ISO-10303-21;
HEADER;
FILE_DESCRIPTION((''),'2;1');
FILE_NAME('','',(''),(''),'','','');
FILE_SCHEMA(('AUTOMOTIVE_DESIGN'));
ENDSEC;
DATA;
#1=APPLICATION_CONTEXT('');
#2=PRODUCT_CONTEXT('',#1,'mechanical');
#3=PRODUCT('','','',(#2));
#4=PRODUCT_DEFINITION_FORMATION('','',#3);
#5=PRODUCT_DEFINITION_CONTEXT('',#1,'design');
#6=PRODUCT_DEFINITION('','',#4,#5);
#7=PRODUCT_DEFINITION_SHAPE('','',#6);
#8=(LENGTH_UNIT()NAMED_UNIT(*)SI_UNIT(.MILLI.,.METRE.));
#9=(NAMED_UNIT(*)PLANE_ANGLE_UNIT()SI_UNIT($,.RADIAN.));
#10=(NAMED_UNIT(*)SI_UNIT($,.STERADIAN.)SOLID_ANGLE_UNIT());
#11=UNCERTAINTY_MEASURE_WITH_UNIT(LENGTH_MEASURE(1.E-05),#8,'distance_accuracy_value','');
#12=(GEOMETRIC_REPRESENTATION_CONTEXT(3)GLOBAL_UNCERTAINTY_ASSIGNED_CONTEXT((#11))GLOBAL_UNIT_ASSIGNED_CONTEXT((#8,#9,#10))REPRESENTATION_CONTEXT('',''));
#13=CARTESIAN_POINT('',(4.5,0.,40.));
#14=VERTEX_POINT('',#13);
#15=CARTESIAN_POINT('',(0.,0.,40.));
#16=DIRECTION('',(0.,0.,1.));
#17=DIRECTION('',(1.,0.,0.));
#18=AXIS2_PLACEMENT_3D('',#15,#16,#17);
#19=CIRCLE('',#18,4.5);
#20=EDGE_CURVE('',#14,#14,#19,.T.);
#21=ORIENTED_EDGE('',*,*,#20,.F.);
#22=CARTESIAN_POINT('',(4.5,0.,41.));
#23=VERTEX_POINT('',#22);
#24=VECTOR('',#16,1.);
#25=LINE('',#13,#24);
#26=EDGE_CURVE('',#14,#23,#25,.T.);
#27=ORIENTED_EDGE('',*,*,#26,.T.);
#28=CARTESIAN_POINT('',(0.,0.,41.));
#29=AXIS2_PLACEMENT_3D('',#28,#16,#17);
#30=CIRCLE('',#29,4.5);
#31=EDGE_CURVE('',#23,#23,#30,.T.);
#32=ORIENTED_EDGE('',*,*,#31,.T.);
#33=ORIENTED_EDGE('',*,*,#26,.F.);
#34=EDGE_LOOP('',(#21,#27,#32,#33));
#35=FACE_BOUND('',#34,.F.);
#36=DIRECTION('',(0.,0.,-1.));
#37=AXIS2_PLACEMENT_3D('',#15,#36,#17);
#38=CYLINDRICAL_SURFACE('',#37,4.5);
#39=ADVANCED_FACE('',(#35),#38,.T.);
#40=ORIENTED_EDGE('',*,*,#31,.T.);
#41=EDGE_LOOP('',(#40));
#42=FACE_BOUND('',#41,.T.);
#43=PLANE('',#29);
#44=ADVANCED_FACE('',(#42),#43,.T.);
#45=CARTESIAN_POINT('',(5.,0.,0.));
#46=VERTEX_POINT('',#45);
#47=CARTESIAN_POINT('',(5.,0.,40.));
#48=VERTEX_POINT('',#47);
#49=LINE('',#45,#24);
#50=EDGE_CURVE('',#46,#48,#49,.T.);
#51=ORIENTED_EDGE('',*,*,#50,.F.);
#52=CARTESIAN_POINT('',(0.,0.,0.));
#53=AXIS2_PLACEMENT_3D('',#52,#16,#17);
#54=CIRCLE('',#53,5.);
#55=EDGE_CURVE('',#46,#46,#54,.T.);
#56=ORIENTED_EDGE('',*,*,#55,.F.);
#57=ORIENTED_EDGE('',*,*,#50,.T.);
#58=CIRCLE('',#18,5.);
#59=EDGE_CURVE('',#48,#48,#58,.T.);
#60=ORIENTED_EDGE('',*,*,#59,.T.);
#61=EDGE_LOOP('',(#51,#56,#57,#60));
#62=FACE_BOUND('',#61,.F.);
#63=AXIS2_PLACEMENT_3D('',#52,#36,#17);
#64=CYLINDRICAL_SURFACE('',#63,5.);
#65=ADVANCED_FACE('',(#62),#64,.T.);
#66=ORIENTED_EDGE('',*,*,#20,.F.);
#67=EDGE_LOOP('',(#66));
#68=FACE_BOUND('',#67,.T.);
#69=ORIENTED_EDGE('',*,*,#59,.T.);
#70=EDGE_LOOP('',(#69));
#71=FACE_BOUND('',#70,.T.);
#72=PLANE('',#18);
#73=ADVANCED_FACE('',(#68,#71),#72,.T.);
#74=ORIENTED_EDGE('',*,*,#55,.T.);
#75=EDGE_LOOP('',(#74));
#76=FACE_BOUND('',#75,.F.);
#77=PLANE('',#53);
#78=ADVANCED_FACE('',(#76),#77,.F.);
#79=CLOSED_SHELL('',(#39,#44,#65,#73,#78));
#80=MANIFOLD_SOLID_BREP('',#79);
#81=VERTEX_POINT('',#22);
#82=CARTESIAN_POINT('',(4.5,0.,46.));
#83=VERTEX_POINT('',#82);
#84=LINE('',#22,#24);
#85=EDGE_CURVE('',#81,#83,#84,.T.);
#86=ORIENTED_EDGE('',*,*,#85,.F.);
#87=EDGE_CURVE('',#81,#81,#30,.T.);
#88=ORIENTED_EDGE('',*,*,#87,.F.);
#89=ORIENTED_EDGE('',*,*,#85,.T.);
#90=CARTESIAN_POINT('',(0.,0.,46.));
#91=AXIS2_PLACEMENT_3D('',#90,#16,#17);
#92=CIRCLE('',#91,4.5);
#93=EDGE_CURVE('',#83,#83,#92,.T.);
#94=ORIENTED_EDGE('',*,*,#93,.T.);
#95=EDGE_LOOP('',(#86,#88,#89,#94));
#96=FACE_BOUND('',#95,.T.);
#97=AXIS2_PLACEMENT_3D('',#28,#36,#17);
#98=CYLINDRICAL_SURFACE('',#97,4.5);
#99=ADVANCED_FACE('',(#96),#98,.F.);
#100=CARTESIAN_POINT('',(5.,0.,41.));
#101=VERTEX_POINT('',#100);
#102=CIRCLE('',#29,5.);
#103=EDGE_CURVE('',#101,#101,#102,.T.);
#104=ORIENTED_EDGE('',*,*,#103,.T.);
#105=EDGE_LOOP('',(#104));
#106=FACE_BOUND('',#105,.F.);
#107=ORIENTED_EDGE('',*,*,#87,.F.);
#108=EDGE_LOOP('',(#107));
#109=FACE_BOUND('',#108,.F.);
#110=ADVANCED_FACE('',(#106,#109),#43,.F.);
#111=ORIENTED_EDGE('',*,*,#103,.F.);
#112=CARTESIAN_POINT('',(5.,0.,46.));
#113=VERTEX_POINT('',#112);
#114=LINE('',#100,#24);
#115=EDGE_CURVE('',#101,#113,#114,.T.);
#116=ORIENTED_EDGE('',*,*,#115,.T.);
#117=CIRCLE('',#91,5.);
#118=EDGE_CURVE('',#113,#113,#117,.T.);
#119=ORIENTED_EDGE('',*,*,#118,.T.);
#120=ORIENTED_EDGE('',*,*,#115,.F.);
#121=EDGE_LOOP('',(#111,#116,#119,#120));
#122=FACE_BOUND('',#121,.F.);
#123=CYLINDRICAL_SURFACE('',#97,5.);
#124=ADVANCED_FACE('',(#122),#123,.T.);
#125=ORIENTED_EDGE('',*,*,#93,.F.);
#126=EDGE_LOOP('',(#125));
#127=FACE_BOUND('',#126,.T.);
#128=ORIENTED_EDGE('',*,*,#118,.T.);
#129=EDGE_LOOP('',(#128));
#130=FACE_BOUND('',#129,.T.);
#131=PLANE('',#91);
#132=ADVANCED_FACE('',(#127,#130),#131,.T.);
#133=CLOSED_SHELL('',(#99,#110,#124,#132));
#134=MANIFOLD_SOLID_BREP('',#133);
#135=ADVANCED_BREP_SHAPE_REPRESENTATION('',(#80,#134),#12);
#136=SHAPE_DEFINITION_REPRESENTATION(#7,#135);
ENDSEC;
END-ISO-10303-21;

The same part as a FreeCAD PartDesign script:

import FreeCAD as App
import Part
import Sketcher

V = App.Vector
Q = App.Units.Quantity

doc = App.newDocument("Part")
body = doc.addObject("PartDesign::Body", "Body")

sketch1 = body.newObject("Sketcher::SketchObject", "Sketch")
sketch1.AttachmentSupport = (doc.getObject("XY_Plane"), [""])
sketch1.MapMode = "FlatFace"
sketch1.addGeometry(Part.Circle(V(0, 0, 0), V(0, 0, 1), 5), False)
sketch1.addConstraint(Sketcher.Constraint("Coincident", 0, 3, -1, 1))
sketch1.addConstraint(Sketcher.Constraint("Diameter", 0, Q("10 mm")))
pad1 = body.newObject("PartDesign::Pad", "Pad")
pad1.Profile = sketch1
pad1.Length = 40

sketch2 = body.newObject("Sketcher::SketchObject", "Sketch001")
sketch2.AttachmentSupport = (doc.getObject("XY_Plane"), [""])
sketch2.MapMode = "FlatFace"
sketch2.AttachmentOffset = App.Placement(V(0, 0, 40), App.Rotation())
sketch2.addGeometry(Part.Circle(V(0, 0, 0), V(0, 0, 1), 4.5), False)
sketch2.addConstraint(Sketcher.Constraint("Coincident", 0, 3, -1, 1))
sketch2.addConstraint(Sketcher.Constraint("Diameter", 0, Q("9 mm")))
pad2 = body.newObject("PartDesign::Pad", "Pad001")
pad2.Profile = sketch2
pad2.Length = 1
body2 = doc.addObject("PartDesign::Body", "Body001")

sketch3 = body2.newObject("Sketcher::SketchObject", "Sketch002")
sketch3.AttachmentSupport = (doc.getObject("XY_Plane001"), [""])
sketch3.MapMode = "FlatFace"
sketch3.AttachmentOffset = App.Placement(V(0, 0, 41), App.Rotation())
sketch3.addGeometry(Part.Circle(V(0, 0, 0), V(0, 0, 1), 5), False)
sketch3.addGeometry(Part.Circle(V(0, 0, 0), V(0, 0, 1), 4.5), False)
sketch3.addConstraint(Sketcher.Constraint("Coincident", 0, 3, -1, 1))
sketch3.addConstraint(Sketcher.Constraint("Coincident", 1, 3, -1, 1))
sketch3.addConstraint(Sketcher.Constraint("Diameter", 0, Q("10 mm")))
sketch3.addConstraint(Sketcher.Constraint("Diameter", 1, Q("9 mm")))
pad3 = body2.newObject("PartDesign::Pad", "Pad002")
pad3.Profile = sketch3
pad3.Length = 5

doc.recompute()
